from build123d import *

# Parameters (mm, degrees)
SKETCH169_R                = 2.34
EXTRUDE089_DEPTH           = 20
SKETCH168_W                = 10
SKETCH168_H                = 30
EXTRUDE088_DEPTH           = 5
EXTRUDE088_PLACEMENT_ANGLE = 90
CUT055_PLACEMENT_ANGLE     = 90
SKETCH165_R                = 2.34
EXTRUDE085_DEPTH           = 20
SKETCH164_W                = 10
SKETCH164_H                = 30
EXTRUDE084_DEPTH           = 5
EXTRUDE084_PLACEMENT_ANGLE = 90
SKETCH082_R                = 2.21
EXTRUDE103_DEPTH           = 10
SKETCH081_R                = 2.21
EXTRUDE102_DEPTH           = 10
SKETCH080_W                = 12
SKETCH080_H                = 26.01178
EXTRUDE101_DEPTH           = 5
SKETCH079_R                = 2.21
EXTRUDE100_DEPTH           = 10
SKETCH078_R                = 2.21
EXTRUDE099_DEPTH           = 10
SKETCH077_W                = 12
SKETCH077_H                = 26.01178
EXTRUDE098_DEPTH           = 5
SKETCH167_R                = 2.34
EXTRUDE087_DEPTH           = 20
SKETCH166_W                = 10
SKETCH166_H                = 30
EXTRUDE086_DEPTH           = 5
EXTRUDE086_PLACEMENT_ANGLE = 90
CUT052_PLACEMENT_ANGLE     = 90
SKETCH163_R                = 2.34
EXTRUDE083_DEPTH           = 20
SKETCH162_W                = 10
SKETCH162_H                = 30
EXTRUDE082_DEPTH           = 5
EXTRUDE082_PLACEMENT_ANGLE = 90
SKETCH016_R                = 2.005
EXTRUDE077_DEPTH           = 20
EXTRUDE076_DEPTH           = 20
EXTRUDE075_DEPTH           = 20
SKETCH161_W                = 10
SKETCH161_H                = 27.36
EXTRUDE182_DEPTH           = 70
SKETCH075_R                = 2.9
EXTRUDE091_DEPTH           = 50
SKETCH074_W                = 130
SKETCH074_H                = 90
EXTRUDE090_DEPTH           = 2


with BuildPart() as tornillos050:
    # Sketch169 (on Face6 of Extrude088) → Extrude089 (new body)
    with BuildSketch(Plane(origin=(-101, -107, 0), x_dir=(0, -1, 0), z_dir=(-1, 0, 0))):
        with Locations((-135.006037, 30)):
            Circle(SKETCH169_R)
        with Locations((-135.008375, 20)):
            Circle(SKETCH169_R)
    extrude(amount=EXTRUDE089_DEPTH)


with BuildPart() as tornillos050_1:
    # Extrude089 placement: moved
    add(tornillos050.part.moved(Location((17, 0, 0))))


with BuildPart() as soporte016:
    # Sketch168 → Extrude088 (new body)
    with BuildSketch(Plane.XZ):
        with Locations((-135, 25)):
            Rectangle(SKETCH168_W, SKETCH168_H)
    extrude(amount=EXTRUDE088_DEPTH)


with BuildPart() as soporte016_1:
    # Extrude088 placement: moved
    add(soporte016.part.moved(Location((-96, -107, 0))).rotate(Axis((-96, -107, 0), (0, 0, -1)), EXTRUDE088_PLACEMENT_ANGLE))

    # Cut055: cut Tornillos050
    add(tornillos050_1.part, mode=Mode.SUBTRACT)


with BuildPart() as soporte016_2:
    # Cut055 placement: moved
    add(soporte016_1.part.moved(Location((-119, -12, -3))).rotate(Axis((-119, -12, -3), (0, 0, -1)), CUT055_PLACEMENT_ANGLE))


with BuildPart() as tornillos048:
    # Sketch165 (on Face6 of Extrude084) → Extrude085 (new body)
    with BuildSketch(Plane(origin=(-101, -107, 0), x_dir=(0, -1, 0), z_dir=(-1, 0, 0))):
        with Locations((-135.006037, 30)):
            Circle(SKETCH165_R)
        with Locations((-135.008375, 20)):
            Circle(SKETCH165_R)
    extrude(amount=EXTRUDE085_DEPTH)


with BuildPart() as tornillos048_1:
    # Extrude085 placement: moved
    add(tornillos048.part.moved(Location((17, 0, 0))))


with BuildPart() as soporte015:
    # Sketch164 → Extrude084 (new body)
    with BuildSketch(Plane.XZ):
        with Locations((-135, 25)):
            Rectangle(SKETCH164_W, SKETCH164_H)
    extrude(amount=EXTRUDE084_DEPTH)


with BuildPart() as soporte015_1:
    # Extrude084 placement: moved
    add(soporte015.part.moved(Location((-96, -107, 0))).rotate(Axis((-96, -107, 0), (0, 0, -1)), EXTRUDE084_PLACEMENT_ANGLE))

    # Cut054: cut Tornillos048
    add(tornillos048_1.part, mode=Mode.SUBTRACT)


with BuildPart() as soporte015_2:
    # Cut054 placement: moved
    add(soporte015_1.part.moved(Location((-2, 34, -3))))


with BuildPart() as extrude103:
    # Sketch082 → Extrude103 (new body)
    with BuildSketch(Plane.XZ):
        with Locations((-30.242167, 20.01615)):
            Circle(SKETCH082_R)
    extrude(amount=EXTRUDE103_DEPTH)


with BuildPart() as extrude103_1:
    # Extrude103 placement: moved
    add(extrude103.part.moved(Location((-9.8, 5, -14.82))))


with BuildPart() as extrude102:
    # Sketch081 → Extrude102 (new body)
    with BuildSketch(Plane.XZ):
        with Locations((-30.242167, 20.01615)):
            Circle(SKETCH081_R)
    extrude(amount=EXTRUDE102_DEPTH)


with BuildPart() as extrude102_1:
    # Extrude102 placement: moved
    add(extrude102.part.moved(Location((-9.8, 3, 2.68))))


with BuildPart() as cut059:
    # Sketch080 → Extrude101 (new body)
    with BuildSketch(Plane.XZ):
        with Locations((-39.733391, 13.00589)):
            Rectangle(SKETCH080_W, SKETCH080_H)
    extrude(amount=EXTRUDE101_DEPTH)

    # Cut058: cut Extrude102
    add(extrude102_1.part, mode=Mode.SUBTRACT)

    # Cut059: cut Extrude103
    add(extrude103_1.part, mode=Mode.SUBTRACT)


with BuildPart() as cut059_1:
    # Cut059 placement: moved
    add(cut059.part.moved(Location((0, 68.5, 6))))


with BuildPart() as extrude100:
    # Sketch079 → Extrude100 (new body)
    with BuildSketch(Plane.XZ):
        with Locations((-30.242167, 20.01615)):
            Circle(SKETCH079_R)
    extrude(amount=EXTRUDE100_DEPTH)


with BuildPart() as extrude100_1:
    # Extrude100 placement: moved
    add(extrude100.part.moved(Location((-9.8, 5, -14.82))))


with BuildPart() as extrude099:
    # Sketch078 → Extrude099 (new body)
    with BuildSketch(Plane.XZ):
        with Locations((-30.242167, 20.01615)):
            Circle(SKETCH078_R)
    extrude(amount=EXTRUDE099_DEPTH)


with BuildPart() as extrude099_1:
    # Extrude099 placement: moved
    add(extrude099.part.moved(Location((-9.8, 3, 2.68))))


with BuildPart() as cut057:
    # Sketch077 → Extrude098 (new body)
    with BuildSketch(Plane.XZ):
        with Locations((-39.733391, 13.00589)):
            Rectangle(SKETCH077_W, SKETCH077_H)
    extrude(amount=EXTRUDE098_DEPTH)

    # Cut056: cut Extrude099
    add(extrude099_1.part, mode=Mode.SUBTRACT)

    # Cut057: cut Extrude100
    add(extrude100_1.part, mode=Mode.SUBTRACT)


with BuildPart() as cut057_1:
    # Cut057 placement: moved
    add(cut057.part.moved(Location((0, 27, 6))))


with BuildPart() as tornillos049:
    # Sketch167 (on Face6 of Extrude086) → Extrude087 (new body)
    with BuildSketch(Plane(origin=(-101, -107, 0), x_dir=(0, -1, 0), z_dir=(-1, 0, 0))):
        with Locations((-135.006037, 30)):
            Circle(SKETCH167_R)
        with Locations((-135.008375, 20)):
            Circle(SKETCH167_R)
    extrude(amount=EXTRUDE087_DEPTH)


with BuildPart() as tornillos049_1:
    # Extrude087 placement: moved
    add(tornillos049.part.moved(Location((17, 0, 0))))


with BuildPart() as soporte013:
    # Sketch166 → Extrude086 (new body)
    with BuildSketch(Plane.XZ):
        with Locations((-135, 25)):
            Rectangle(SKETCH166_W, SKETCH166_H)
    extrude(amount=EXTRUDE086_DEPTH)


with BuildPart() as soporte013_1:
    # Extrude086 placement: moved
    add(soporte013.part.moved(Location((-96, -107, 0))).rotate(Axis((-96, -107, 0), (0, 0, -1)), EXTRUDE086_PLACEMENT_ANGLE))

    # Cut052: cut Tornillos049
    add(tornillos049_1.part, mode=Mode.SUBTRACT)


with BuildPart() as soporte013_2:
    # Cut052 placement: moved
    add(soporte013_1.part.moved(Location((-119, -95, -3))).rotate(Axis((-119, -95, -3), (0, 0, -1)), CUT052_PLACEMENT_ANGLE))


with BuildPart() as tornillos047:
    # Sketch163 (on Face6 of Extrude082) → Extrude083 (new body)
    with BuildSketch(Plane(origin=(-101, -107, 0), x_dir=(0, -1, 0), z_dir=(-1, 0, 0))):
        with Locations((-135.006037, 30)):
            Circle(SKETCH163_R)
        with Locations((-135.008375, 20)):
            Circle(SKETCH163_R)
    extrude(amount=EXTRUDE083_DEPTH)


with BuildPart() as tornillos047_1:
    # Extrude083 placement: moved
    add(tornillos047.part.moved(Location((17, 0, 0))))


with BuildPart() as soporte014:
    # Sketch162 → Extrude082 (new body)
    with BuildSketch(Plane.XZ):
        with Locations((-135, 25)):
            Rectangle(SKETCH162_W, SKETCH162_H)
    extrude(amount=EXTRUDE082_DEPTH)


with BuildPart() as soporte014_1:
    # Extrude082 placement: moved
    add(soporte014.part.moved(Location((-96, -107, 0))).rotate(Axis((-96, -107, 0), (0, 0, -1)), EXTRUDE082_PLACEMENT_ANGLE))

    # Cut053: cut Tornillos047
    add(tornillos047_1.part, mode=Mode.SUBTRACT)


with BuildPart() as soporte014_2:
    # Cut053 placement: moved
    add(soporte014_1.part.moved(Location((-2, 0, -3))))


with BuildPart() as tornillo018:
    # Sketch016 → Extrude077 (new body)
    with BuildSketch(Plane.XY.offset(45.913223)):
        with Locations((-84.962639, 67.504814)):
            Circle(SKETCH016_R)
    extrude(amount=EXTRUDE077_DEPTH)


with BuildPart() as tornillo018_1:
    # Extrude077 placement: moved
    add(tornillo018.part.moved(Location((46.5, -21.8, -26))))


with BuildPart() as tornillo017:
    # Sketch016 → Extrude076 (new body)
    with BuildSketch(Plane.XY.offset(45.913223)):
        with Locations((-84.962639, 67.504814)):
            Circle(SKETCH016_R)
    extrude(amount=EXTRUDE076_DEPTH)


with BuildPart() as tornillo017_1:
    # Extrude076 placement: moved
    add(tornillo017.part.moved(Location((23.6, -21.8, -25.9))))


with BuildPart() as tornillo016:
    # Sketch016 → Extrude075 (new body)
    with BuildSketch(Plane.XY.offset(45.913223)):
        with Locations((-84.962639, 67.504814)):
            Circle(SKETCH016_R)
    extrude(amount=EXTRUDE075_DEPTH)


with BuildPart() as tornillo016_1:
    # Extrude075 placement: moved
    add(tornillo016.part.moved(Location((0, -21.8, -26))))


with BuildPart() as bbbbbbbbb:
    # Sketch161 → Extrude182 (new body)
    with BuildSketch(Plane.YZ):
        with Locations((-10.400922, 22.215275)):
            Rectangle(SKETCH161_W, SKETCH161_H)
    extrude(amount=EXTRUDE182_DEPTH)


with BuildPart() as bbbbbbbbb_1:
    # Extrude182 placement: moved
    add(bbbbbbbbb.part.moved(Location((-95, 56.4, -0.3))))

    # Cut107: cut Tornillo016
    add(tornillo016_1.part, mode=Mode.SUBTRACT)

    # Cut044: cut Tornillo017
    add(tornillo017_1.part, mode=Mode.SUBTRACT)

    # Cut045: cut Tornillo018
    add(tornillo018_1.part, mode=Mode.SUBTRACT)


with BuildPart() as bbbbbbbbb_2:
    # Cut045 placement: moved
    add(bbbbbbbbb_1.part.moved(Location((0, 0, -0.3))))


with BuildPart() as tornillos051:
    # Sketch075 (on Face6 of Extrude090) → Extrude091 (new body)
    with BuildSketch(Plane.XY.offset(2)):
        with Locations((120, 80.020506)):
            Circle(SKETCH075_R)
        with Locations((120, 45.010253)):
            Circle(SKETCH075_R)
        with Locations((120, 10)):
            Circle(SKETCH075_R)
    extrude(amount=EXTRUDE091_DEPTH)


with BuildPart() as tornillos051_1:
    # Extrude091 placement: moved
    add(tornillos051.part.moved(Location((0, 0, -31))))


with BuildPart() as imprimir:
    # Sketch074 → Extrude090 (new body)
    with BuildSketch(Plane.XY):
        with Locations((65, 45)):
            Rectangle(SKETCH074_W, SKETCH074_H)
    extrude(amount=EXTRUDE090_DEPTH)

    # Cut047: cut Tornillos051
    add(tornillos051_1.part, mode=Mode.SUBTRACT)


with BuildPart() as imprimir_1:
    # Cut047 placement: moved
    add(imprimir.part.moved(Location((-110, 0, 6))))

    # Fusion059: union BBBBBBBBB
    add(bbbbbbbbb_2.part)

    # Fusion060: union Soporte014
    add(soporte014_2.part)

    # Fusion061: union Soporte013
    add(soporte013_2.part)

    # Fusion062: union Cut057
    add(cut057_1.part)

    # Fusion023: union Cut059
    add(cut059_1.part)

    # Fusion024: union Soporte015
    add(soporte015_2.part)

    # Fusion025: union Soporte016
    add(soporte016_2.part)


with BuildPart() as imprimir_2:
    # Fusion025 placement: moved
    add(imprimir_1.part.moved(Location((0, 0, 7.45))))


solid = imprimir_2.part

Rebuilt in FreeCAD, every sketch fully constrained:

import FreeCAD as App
import Part
import Sketcher
Q = App.Units.Quantity


def add_polygon(sketch, points):
    """Adds a closed chain of lines whose ends are joined by coincident constraints."""
    first, n = sketch.GeometryCount, len(points)
    for a, b in zip(points, points[1:] + points[:1]):
        sketch.addGeometry(Part.LineSegment(App.Vector(*a, 0), App.Vector(*b, 0)), False)
    for i in range(n):
        sketch.addConstraint(Sketcher.Constraint("Coincident", first + i, 2, first + (i + 1) % n, 1))

doc = App.newDocument("Part")
params = doc.addObject("Spreadsheet::Sheet", "Params")
for row, (alias, value) in enumerate([
    ("sketch1_diameter", "4.68 mm"),
    ("pad1_length", "20 mm"),
    ("sketch2_width", "10 mm"),
    ("sketch2_height", "30 mm"),
    ("pad2_length", "5 mm"),
    ("sketch3_diameter", "4.68 mm"),
    ("pad3_length", "20 mm"),
    ("sketch4_width", "10 mm"),
    ("sketch4_height", "30 mm"),
    ("pad4_length", "5 mm"),
    ("sketch5_diameter", "4.42 mm"),
    ("pad5_length", "10 mm"),
    ("sketch6_diameter", "4.42 mm"),
    ("pad6_length", "10 mm"),
    ("sketch7_width", "12 mm"),
    ("pad7_length", "5 mm"),
    ("sketch8_diameter", "4.42 mm"),
    ("pad8_length", "10 mm"),
    ("sketch9_diameter", "4.42 mm"),
    ("pad9_length", "10 mm"),
    ("sketch10_width", "12 mm"),
    ("pad10_length", "5 mm"),
    ("sketch11_diameter", "4.68 mm"),
    ("pad11_length", "20 mm"),
    ("sketch12_width", "10 mm"),
    ("sketch12_height", "30 mm"),
    ("pad12_length", "5 mm"),
    ("sketch13_diameter", "4.68 mm"),
    ("pad13_length", "20 mm"),
    ("sketch14_width", "10 mm"),
    ("sketch14_height", "30 mm"),
    ("pad14_length", "5 mm"),
    ("sketch15_diameter", "4.01 mm"),
    ("pad15_length", "20 mm"),
    ("sketch16_diameter", "4.01 mm"),
    ("pad16_length", "20 mm"),
    ("sketch17_diameter", "4.01 mm"),
    ("pad17_length", "20 mm"),
    ("sketch18_width", "10 mm"),
    ("sketch18_height", "27.36 mm"),
    ("pad18_length", "70 mm"),
    ("sketch19_diameter", "5.8 mm"),
    ("pad19_length", "50 mm"),
    ("sketch20_width", "130 mm"),
    ("sketch20_height", "90 mm"),
    ("pad20_length", "2 mm"),
], start=1):
    params.set(f"A{row}", alias)
    params.set(f"B{row}", "=" + value)
    params.setAlias(f"B{row}", alias)

body = doc.addObject("PartDesign::Body", "Body")
body.AllowCompound = True

sketch1 = body.newObject("Sketcher::SketchObject", "Sketch")
sketch1.AttachmentSupport = (doc.getObject("YZ_Plane"), [""])
sketch1.MapMode = "FlatFace"
sketch1.AttachmentOffset = App.Placement(App.Vector(0, 0, -101), App.Rotation())
sketch1.addGeometry(Part.Circle(App.Vector(28, 30, 0), App.Vector(0, 0, 1), 2.3), False)
sketch1.addGeometry(Part.Circle(App.Vector(28, 20, 0), App.Vector(0, 0, 1), 2.3), False)
sketch1.addConstraint(Sketcher.Constraint("Equal", 0, 1))
sketch1.addConstraint(Sketcher.Constraint("Diameter", 0, Q("4.68 mm")))
sketch1.addConstraint(Sketcher.Constraint("DistanceY", -1, 1, 0, 3, Q("30 mm")))
sketch1.addConstraint(Sketcher.Constraint("DistanceY", -1, 1, 1, 3, Q("20 mm")))
sketch1.addConstraint(Sketcher.Constraint("DistanceX", 0, 3, 1, 3, Q("0.002338 mm")))
sketch1.addConstraint(Sketcher.Constraint("DistanceX", -1, 1, 0, 3, Q("28.006037 mm")))
sketch1.setExpression("Constraints[1]", "Params.sketch1_diameter")
pad1 = body.newObject("PartDesign::Pad", "Pad")
pad1.Profile = sketch1
pad1.setExpression("Length", "Params.pad1_length")
pad1.Reversed = True
body2 = doc.addObject("PartDesign::Body", "Body001")
body2.AllowCompound = True
doc.recompute()

body.Placement = App.Placement(App.Vector(17, 0, 0), App.Rotation(App.Vector(0, 0, 1), 0))
boolean = body2.newObject("PartDesign::Boolean", "Boolean")
boolean.Type = "Fuse"
boolean.addObjects([body])
body3 = doc.addObject("PartDesign::Body", "Body002")

sketch2 = body3.newObject("Sketcher::SketchObject", "Sketch001")
sketch2.AttachmentSupport = (doc.getObject("XZ_Plane002"), [""])
sketch2.MapMode = "FlatFace"
add_polygon(sketch2, [(-140, 40), (-140, 10), (-130, 10), (-130, 40)])
sketch2.addConstraint(Sketcher.Constraint("Vertical", 0))
sketch2.addConstraint(Sketcher.Constraint("Horizontal", 1))
sketch2.addConstraint(Sketcher.Constraint("Vertical", 2))
sketch2.addConstraint(Sketcher.Constraint("Horizontal", 3))
sketch2.addConstraint(Sketcher.Constraint("DistanceX", 1, 1, 1, 2, Q("10 mm")))
sketch2.addConstraint(Sketcher.Constraint("DistanceY", 0, 2, 0, 1, Q("30 mm")))
sketch2.addConstraint(Sketcher.Constraint("DistanceX", 0, 2, -1, 1, Q("140 mm")))
sketch2.addConstraint(Sketcher.Constraint("DistanceY", -1, 1, 0, 2, Q("10 mm")))
sketch2.setExpression("Constraints[8]", "Params.sketch2_width")
sketch2.setExpression("Constraints[9]", "Params.sketch2_height")
pad2 = body3.newObject("PartDesign::Pad", "Pad001")
pad2.Profile = sketch2
pad2.setExpression("Length", "Params.pad2_length")
body4 = doc.addObject("PartDesign::Body", "Body003")
doc.recompute()

body3.Placement = App.Placement(App.Vector(-96, -107, 0), App.Rotation(App.Vector(0, 0, -1), 90))
boolean2 = body4.newObject("PartDesign::Boolean", "Boolean001")
boolean2.Type = "Fuse"
boolean2.addObjects([body3])
doc.recompute()

boolean3 = body4.newObject("PartDesign::Boolean", "Boolean002")
boolean3.Type = "Cut"
boolean3.addObjects([body2])
body5 = doc.addObject("PartDesign::Body", "Body004")
doc.recompute()

body4.Placement = App.Placement(App.Vector(-119, -12, -3), App.Rotation(App.Vector(0, 0, -1), 90))
boolean4 = body5.newObject("PartDesign::Boolean", "Boolean003")
boolean4.Type = "Fuse"
boolean4.addObjects([body4])
body6 = doc.addObject("PartDesign::Body", "Body005")
body6.AllowCompound = True

sketch3 = body6.newObject("Sketcher::SketchObject", "Sketch002")
sketch3.AttachmentSupport = (doc.getObject("YZ_Plane005"), [""])
sketch3.MapMode = "FlatFace"
sketch3.AttachmentOffset = App.Placement(App.Vector(0, 0, -101), App.Rotation())
sketch3.addGeometry(Part.Circle(App.Vector(28, 30, 0), App.Vector(0, 0, 1), 2.3), False)
sketch3.addGeometry(Part.Circle(App.Vector(28, 20, 0), App.Vector(0, 0, 1), 2.3), False)
sketch3.addConstraint(Sketcher.Constraint("Equal", 0, 1))
sketch3.addConstraint(Sketcher.Constraint("Diameter", 0, Q("4.68 mm")))
sketch3.addConstraint(Sketcher.Constraint("DistanceY", -1, 1, 0, 3, Q("30 mm")))
sketch3.addConstraint(Sketcher.Constraint("DistanceY", -1, 1, 1, 3, Q("20 mm")))
sketch3.addConstraint(Sketcher.Constraint("DistanceX", 0, 3, 1, 3, Q("0.002338 mm")))
sketch3.addConstraint(Sketcher.Constraint("DistanceX", -1, 1, 0, 3, Q("28.006037 mm")))
sketch3.setExpression("Constraints[1]", "Params.sketch3_diameter")
pad3 = body6.newObject("PartDesign::Pad", "Pad002")
pad3.Profile = sketch3
pad3.setExpression("Length", "Params.pad3_length")
pad3.Reversed = True
body7 = doc.addObject("PartDesign::Body", "Body006")
body7.AllowCompound = True
doc.recompute()

body6.Placement = App.Placement(App.Vector(17, 0, 0), App.Rotation(App.Vector(0, 0, 1), 0))
boolean5 = body7.newObject("PartDesign::Boolean", "Boolean004")
boolean5.Type = "Fuse"
boolean5.addObjects([body6])
body8 = doc.addObject("PartDesign::Body", "Body007")

sketch4 = body8.newObject("Sketcher::SketchObject", "Sketch003")
sketch4.AttachmentSupport = (doc.getObject("XZ_Plane007"), [""])
sketch4.MapMode = "FlatFace"
add_polygon(sketch4, [(-140, 40), (-140, 10), (-130, 10), (-130, 40)])
sketch4.addConstraint(Sketcher.Constraint("Vertical", 0))
sketch4.addConstraint(Sketcher.Constraint("Horizontal", 1))
sketch4.addConstraint(Sketcher.Constraint("Vertical", 2))
sketch4.addConstraint(Sketcher.Constraint("Horizontal", 3))
sketch4.addConstraint(Sketcher.Constraint("DistanceX", 1, 1, 1, 2, Q("10 mm")))
sketch4.addConstraint(Sketcher.Constraint("DistanceY", 0, 2, 0, 1, Q("30 mm")))
sketch4.addConstraint(Sketcher.Constraint("DistanceX", 0, 2, -1, 1, Q("140 mm")))
sketch4.addConstraint(Sketcher.Constraint("DistanceY", -1, 1, 0, 2, Q("10 mm")))
sketch4.setExpression("Constraints[8]", "Params.sketch4_width")
sketch4.setExpression("Constraints[9]", "Params.sketch4_height")
pad4 = body8.newObject("PartDesign::Pad", "Pad003")
pad4.Profile = sketch4
pad4.setExpression("Length", "Params.pad4_length")
body9 = doc.addObject("PartDesign::Body", "Body008")
doc.recompute()

body8.Placement = App.Placement(App.Vector(-96, -107, 0), App.Rotation(App.Vector(0, 0, -1), 90))
boolean6 = body9.newObject("PartDesign::Boolean", "Boolean005")
boolean6.Type = "Fuse"
boolean6.addObjects([body8])
doc.recompute()

boolean7 = body9.newObject("PartDesign::Boolean", "Boolean006")
boolean7.Type = "Cut"
boolean7.addObjects([body7])
body10 = doc.addObject("PartDesign::Body", "Body009")
doc.recompute()

body9.Placement = App.Placement(App.Vector(-2, 34, -3), App.Rotation(App.Vector(0, 0, 1), 0))
boolean8 = body10.newObject("PartDesign::Boolean", "Boolean007")
boolean8.Type = "Fuse"
boolean8.addObjects([body9])
body11 = doc.addObject("PartDesign::Body", "Body010")

sketch5 = body11.newObject("Sketcher::SketchObject", "Sketch004")
sketch5.AttachmentSupport = (doc.getObject("XZ_Plane010"), [""])
sketch5.MapMode = "FlatFace"
sketch5.addGeometry(Part.Circle(App.Vector(-30.2, 20, 0), App.Vector(0, 0, 1), 2.2), False)
sketch5.addConstraint(Sketcher.Constraint("Diameter", 0, Q("4.42 mm")))
sketch5.addConstraint(Sketcher.Constraint("DistanceY", -1, 1, 0, 3, Q("20.01615 mm")))
sketch5.addConstraint(Sketcher.Constraint("DistanceX", 0, 3, -1, 1, Q("30.242167 mm")))
sketch5.setExpression("Constraints[0]", "Params.sketch5_diameter")
pad5 = body11.newObject("PartDesign::Pad", "Pad004")
pad5.Profile = sketch5
pad5.setExpression("Length", "Params.pad5_length")
body12 = doc.addObject("PartDesign::Body", "Body011")
doc.recompute()

body11.Placement = App.Placement(App.Vector(-9.8, 5, -14.82), App.Rotation(App.Vector(0, 0, 1), 0))
boolean9 = body12.newObject("PartDesign::Boolean", "Boolean008")
boolean9.Type = "Fuse"
boolean9.addObjects([body11])
body13 = doc.addObject("PartDesign::Body", "Body012")

sketch6 = body13.newObject("Sketcher::SketchObject", "Sketch005")
sketch6.AttachmentSupport = (doc.getObject("XZ_Plane012"), [""])
sketch6.MapMode = "FlatFace"
sketch6.addGeometry(Part.Circle(App.Vector(-30.2, 20, 0), App.Vector(0, 0, 1), 2.2), False)
sketch6.addConstraint(Sketcher.Constraint("Diameter", 0, Q("4.42 mm")))
sketch6.addConstraint(Sketcher.Constraint("DistanceY", -1, 1, 0, 3, Q("20.01615 mm")))
sketch6.addConstraint(Sketcher.Constraint("DistanceX", 0, 3, -1, 1, Q("30.242167 mm")))
sketch6.setExpression("Constraints[0]", "Params.sketch6_diameter")
pad6 = body13.newObject("PartDesign::Pad", "Pad005")
pad6.Profile = sketch6
pad6.setExpression("Length", "Params.pad6_length")
body14 = doc.addObject("PartDesign::Body", "Body013")
doc.recompute()

body13.Placement = App.Placement(App.Vector(-9.8, 3, 2.68), App.Rotation(App.Vector(0, 0, 1), 0))
boolean10 = body14.newObject("PartDesign::Boolean", "Boolean009")
boolean10.Type = "Fuse"
boolean10.addObjects([body13])
body15 = doc.addObject("PartDesign::Body", "Body014")

sketch7 = body15.newObject("Sketcher::SketchObject", "Sketch006")
sketch7.AttachmentSupport = (doc.getObject("XZ_Plane014"), [""])
sketch7.MapMode = "FlatFace"
add_polygon(sketch7, [(-46, 26), (-46, 0), (-34, 0), (-34, 26)])
sketch7.addConstraint(Sketcher.Constraint("Vertical", 0))
sketch7.addConstraint(Sketcher.Constraint("Horizontal", 1))
sketch7.addConstraint(Sketcher.Constraint("Vertical", 2))
sketch7.addConstraint(Sketcher.Constraint("Horizontal", 3))
sketch7.addConstraint(Sketcher.Constraint("PointOnObject", 0, 2, -1))
sketch7.addConstraint(Sketcher.Constraint("DistanceX", 1, 1, 1, 2, Q("12 mm")))
sketch7.addConstraint(Sketcher.Constraint("DistanceY", 0, 2, 0, 1, Q("26.01178 mm")))
sketch7.addConstraint(Sketcher.Constraint("DistanceX", 0, 2, -1, 1, Q("45.733391 mm")))
sketch7.setExpression("Constraints[9]", "Params.sketch7_width")
pad7 = body15.newObject("PartDesign::Pad", "Pad006")
pad7.Profile = sketch7
pad7.setExpression("Length", "Params.pad7_length")
doc.recompute()

boolean11 = body15.newObject("PartDesign::Boolean", "Boolean010")
boolean11.Type = "Cut"
boolean11.addObjects([body14])
doc.recompute()

boolean12 = body15.newObject("PartDesign::Boolean", "Boolean011")
boolean12.Type = "Cut"
boolean12.addObjects([body12])
body16 = doc.addObject("PartDesign::Body", "Body015")
doc.recompute()

body15.Placement = App.Placement(App.Vector(0, 68.5, 6), App.Rotation(App.Vector(0, 0, 1), 0))
boolean13 = body16.newObject("PartDesign::Boolean", "Boolean012")
boolean13.Type = "Fuse"
boolean13.addObjects([body15])
body17 = doc.addObject("PartDesign::Body", "Body016")

sketch8 = body17.newObject("Sketcher::SketchObject", "Sketch007")
sketch8.AttachmentSupport = (doc.getObject("XZ_Plane016"), [""])
sketch8.MapMode = "FlatFace"
sketch8.addGeometry(Part.Circle(App.Vector(-30.2, 20, 0), App.Vector(0, 0, 1), 2.2), False)
sketch8.addConstraint(Sketcher.Constraint("Diameter", 0, Q("4.42 mm")))
sketch8.addConstraint(Sketcher.Constraint("DistanceY", -1, 1, 0, 3, Q("20.01615 mm")))
sketch8.addConstraint(Sketcher.Constraint("DistanceX", 0, 3, -1, 1, Q("30.242167 mm")))
sketch8.setExpression("Constraints[0]", "Params.sketch8_diameter")
pad8 = body17.newObject("PartDesign::Pad", "Pad007")
pad8.Profile = sketch8
pad8.setExpression("Length", "Params.pad8_length")
body18 = doc.addObject("PartDesign::Body", "Body017")
doc.recompute()

body17.Placement = App.Placement(App.Vector(-9.8, 5, -14.82), App.Rotation(App.Vector(0, 0, 1), 0))
boolean14 = body18.newObject("PartDesign::Boolean", "Boolean013")
boolean14.Type = "Fuse"
boolean14.addObjects([body17])
body19 = doc.addObject("PartDesign::Body", "Body018")

sketch9 = body19.newObject("Sketcher::SketchObject", "Sketch008")
sketch9.AttachmentSupport = (doc.getObject("XZ_Plane018"), [""])
sketch9.MapMode = "FlatFace"
sketch9.addGeometry(Part.Circle(App.Vector(-30.2, 20, 0), App.Vector(0, 0, 1), 2.2), False)
sketch9.addConstraint(Sketcher.Constraint("Diameter", 0, Q("4.42 mm")))
sketch9.addConstraint(Sketcher.Constraint("DistanceY", -1, 1, 0, 3, Q("20.01615 mm")))
sketch9.addConstraint(Sketcher.Constraint("DistanceX", 0, 3, -1, 1, Q("30.242167 mm")))
sketch9.setExpression("Constraints[0]", "Params.sketch9_diameter")
pad9 = body19.newObject("PartDesign::Pad", "Pad008")
pad9.Profile = sketch9
pad9.setExpression("Length", "Params.pad9_length")
body20 = doc.addObject("PartDesign::Body", "Body019")
doc.recompute()

body19.Placement = App.Placement(App.Vector(-9.8, 3, 2.68), App.Rotation(App.Vector(0, 0, 1), 0))
boolean15 = body20.newObject("PartDesign::Boolean", "Boolean014")
boolean15.Type = "Fuse"
boolean15.addObjects([body19])
body21 = doc.addObject("PartDesign::Body", "Body020")

sketch10 = body21.newObject("Sketcher::SketchObject", "Sketch009")
sketch10.AttachmentSupport = (doc.getObject("XZ_Plane020"), [""])
sketch10.MapMode = "FlatFace"
add_polygon(sketch10, [(-46, 26), (-46, 0), (-34, 0), (-34, 26)])
sketch10.addConstraint(Sketcher.Constraint("Vertical", 0))
sketch10.addConstraint(Sketcher.Constraint("Horizontal", 1))
sketch10.addConstraint(Sketcher.Constraint("Vertical", 2))
sketch10.addConstraint(Sketcher.Constraint("Horizontal", 3))
sketch10.addConstraint(Sketcher.Constraint("PointOnObject", 0, 2, -1))
sketch10.addConstraint(Sketcher.Constraint("DistanceX", 1, 1, 1, 2, Q("12 mm")))
sketch10.addConstraint(Sketcher.Constraint("DistanceY", 0, 2, 0, 1, Q("26.01178 mm")))
sketch10.addConstraint(Sketcher.Constraint("DistanceX", 0, 2, -1, 1, Q("45.733391 mm")))
sketch10.setExpression("Constraints[9]", "Params.sketch10_width")
pad10 = body21.newObject("PartDesign::Pad", "Pad009")
pad10.Profile = sketch10
pad10.setExpression("Length", "Params.pad10_length")
doc.recompute()

boolean16 = body21.newObject("PartDesign::Boolean", "Boolean015")
boolean16.Type = "Cut"
boolean16.addObjects([body20])
doc.recompute()

boolean17 = body21.newObject("PartDesign::Boolean", "Boolean016")
boolean17.Type = "Cut"
boolean17.addObjects([body18])
body22 = doc.addObject("PartDesign::Body", "Body021")
doc.recompute()

body21.Placement = App.Placement(App.Vector(0, 27, 6), App.Rotation(App.Vector(0, 0, 1), 0))
boolean18 = body22.newObject("PartDesign::Boolean", "Boolean017")
boolean18.Type = "Fuse"
boolean18.addObjects([body21])
body23 = doc.addObject("PartDesign::Body", "Body022")
body23.AllowCompound = True

sketch11 = body23.newObject("Sketcher::SketchObject", "Sketch010")
sketch11.AttachmentSupport = (doc.getObject("YZ_Plane022"), [""])
sketch11.MapMode = "FlatFace"
sketch11.AttachmentOffset = App.Placement(App.Vector(0, 0, -101), App.Rotation())
sketch11.addGeometry(Part.Circle(App.Vector(28, 30, 0), App.Vector(0, 0, 1), 2.3), False)
sketch11.addGeometry(Part.Circle(App.Vector(28, 20, 0), App.Vector(0, 0, 1), 2.3), False)
sketch11.addConstraint(Sketcher.Constraint("Equal", 0, 1))
sketch11.addConstraint(Sketcher.Constraint("Diameter", 0, Q("4.68 mm")))
sketch11.addConstraint(Sketcher.Constraint("DistanceY", -1, 1, 0, 3, Q("30 mm")))
sketch11.addConstraint(Sketcher.Constraint("DistanceY", -1, 1, 1, 3, Q("20 mm")))
sketch11.addConstraint(Sketcher.Constraint("DistanceX", 0, 3, 1, 3, Q("0.002338 mm")))
sketch11.addConstraint(Sketcher.Constraint("DistanceX", -1, 1, 0, 3, Q("28.006037 mm")))
sketch11.setExpression("Constraints[1]", "Params.sketch11_diameter")
pad11 = body23.newObject("PartDesign::Pad", "Pad010")
pad11.Profile = sketch11
pad11.setExpression("Length", "Params.pad11_length")
pad11.Reversed = True
body24 = doc.addObject("PartDesign::Body", "Body023")
body24.AllowCompound = True
doc.recompute()

body23.Placement = App.Placement(App.Vector(17, 0, 0), App.Rotation(App.Vector(0, 0, 1), 0))
boolean19 = body24.newObject("PartDesign::Boolean", "Boolean018")
boolean19.Type = "Fuse"
boolean19.addObjects([body23])
body25 = doc.addObject("PartDesign::Body", "Body024")

sketch12 = body25.newObject("Sketcher::SketchObject", "Sketch011")
sketch12.AttachmentSupport = (doc.getObject("XZ_Plane024"), [""])
sketch12.MapMode = "FlatFace"
add_polygon(sketch12, [(-140, 40), (-140, 10), (-130, 10), (-130, 40)])
sketch12.addConstraint(Sketcher.Constraint("Vertical", 0))
sketch12.addConstraint(Sketcher.Constraint("Horizontal", 1))
sketch12.addConstraint(Sketcher.Constraint("Vertical", 2))
sketch12.addConstraint(Sketcher.Constraint("Horizontal", 3))
sketch12.addConstraint(Sketcher.Constraint("DistanceX", 1, 1, 1, 2, Q("10 mm")))
sketch12.addConstraint(Sketcher.Constraint("DistanceY", 0, 2, 0, 1, Q("30 mm")))
sketch12.addConstraint(Sketcher.Constraint("DistanceX", 0, 2, -1, 1, Q("140 mm")))
sketch12.addConstraint(Sketcher.Constraint("DistanceY", -1, 1, 0, 2, Q("10 mm")))
sketch12.setExpression("Constraints[8]", "Params.sketch12_width")
sketch12.setExpression("Constraints[9]", "Params.sketch12_height")
pad12 = body25.newObject("PartDesign::Pad", "Pad011")
pad12.Profile = sketch12
pad12.setExpression("Length", "Params.pad12_length")
body26 = doc.addObject("PartDesign::Body", "Body025")
doc.recompute()

body25.Placement = App.Placement(App.Vector(-96, -107, 0), App.Rotation(App.Vector(0, 0, -1), 90))
boolean20 = body26.newObject("PartDesign::Boolean", "Boolean019")
boolean20.Type = "Fuse"
boolean20.addObjects([body25])
doc.recompute()

boolean21 = body26.newObject("PartDesign::Boolean", "Boolean020")
boolean21.Type = "Cut"
boolean21.addObjects([body24])
body27 = doc.addObject("PartDesign::Body", "Body026")
doc.recompute()

body26.Placement = App.Placement(App.Vector(-119, -95, -3), App.Rotation(App.Vector(0, 0, -1), 90))
boolean22 = body27.newObject("PartDesign::Boolean", "Boolean021")
boolean22.Type = "Fuse"
boolean22.addObjects([body26])
body28 = doc.addObject("PartDesign::Body", "Body027")
body28.AllowCompound = True

sketch13 = body28.newObject("Sketcher::SketchObject", "Sketch012")
sketch13.AttachmentSupport = (doc.getObject("YZ_Plane027"), [""])
sketch13.MapMode = "FlatFace"
sketch13.AttachmentOffset = App.Placement(App.Vector(0, 0, -101), App.Rotation())
sketch13.addGeometry(Part.Circle(App.Vector(28, 30, 0), App.Vector(0, 0, 1), 2.3), False)
sketch13.addGeometry(Part.Circle(App.Vector(28, 20, 0), App.Vector(0, 0, 1), 2.3), False)
sketch13.addConstraint(Sketcher.Constraint("Equal", 0, 1))
sketch13.addConstraint(Sketcher.Constraint("Diameter", 0, Q("4.68 mm")))
sketch13.addConstraint(Sketcher.Constraint("DistanceY", -1, 1, 0, 3, Q("30 mm")))
sketch13.addConstraint(Sketcher.Constraint("DistanceY", -1, 1, 1, 3, Q("20 mm")))
sketch13.addConstraint(Sketcher.Constraint("DistanceX", 0, 3, 1, 3, Q("0.002338 mm")))
sketch13.addConstraint(Sketcher.Constraint("DistanceX", -1, 1, 0, 3, Q("28.006037 mm")))
sketch13.setExpression("Constraints[1]", "Params.sketch13_diameter")
pad13 = body28.newObject("PartDesign::Pad", "Pad012")
pad13.Profile = sketch13
pad13.setExpression("Length", "Params.pad13_length")
pad13.Reversed = True
body29 = doc.addObject("PartDesign::Body", "Body028")
body29.AllowCompound = True
doc.recompute()

body28.Placement = App.Placement(App.Vector(17, 0, 0), App.Rotation(App.Vector(0, 0, 1), 0))
boolean23 = body29.newObject("PartDesign::Boolean", "Boolean022")
boolean23.Type = "Fuse"
boolean23.addObjects([body28])
body30 = doc.addObject("PartDesign::Body", "Body029")

sketch14 = body30.newObject("Sketcher::SketchObject", "Sketch013")
sketch14.AttachmentSupport = (doc.getObject("XZ_Plane029"), [""])
sketch14.MapMode = "FlatFace"
add_polygon(sketch14, [(-140, 40), (-140, 10), (-130, 10), (-130, 40)])
sketch14.addConstraint(Sketcher.Constraint("Vertical", 0))
sketch14.addConstraint(Sketcher.Constraint("Horizontal", 1))
sketch14.addConstraint(Sketcher.Constraint("Vertical", 2))
sketch14.addConstraint(Sketcher.Constraint("Horizontal", 3))
sketch14.addConstraint(Sketcher.Constraint("DistanceX", 1, 1, 1, 2, Q("10 mm")))
sketch14.addConstraint(Sketcher.Constraint("DistanceY", 0, 2, 0, 1, Q("30 mm")))
sketch14.addConstraint(Sketcher.Constraint("DistanceX", 0, 2, -1, 1, Q("140 mm")))
sketch14.addConstraint(Sketcher.Constraint("DistanceY", -1, 1, 0, 2, Q("10 mm")))
sketch14.setExpression("Constraints[8]", "Params.sketch14_width")
sketch14.setExpression("Constraints[9]", "Params.sketch14_height")
pad14 = body30.newObject("PartDesign::Pad", "Pad013")
pad14.Profile = sketch14
pad14.setExpression("Length", "Params.pad14_length")
body31 = doc.addObject("PartDesign::Body", "Body030")
doc.recompute()

body30.Placement = App.Placement(App.Vector(-96, -107, 0), App.Rotation(App.Vector(0, 0, -1), 90))
boolean24 = body31.newObject("PartDesign::Boolean", "Boolean023")
boolean24.Type = "Fuse"
boolean24.addObjects([body30])
doc.recompute()

boolean25 = body31.newObject("PartDesign::Boolean", "Boolean024")
boolean25.Type = "Cut"
boolean25.addObjects([body29])
body32 = doc.addObject("PartDesign::Body", "Body031")
doc.recompute()

body31.Placement = App.Placement(App.Vector(-2, 0, -3), App.Rotation(App.Vector(0, 0, 1), 0))
boolean26 = body32.newObject("PartDesign::Boolean", "Boolean025")
boolean26.Type = "Fuse"
boolean26.addObjects([body31])
body33 = doc.addObject("PartDesign::Body", "Body032")

sketch15 = body33.newObject("Sketcher::SketchObject", "Sketch014")
sketch15.AttachmentSupport = (doc.getObject("XY_Plane032"), [""])
sketch15.MapMode = "FlatFace"
sketch15.AttachmentOffset = App.Placement(App.Vector(0, 0, 45.913223), App.Rotation())
sketch15.addGeometry(Part.Circle(App.Vector(-85, 67.5, 0), App.Vector(0, 0, 1), 2), False)
sketch15.addConstraint(Sketcher.Constraint("Diameter", 0, Q("4.01 mm")))
sketch15.addConstraint(Sketcher.Constraint("DistanceX", 0, 3, -1, 1, Q("84.962639 mm")))
sketch15.addConstraint(Sketcher.Constraint("DistanceY", -1, 1, 0, 3, Q("67.504814 mm")))
sketch15.setExpression("Constraints[0]", "Params.sketch15_diameter")
pad15 = body33.newObject("PartDesign::Pad", "Pad014")
pad15.Profile = sketch15
pad15.setExpression("Length", "Params.pad15_length")
body34 = doc.addObject("PartDesign::Body", "Body033")
doc.recompute()

body33.Placement = App.Placement(App.Vector(46.5, -21.8, -26), App.Rotation(App.Vector(0, 0, 1), 0))
boolean27 = body34.newObject("PartDesign::Boolean", "Boolean026")
boolean27.Type = "Fuse"
boolean27.addObjects([body33])
body35 = doc.addObject("PartDesign::Body", "Body034")

sketch16 = body35.newObject("Sketcher::SketchObject", "Sketch015")
sketch16.AttachmentSupport = (doc.getObject("XY_Plane034"), [""])
sketch16.MapMode = "FlatFace"
sketch16.AttachmentOffset = App.Placement(App.Vector(0, 0, 45.913223), App.Rotation())
sketch16.addGeometry(Part.Circle(App.Vector(-85, 67.5, 0), App.Vector(0, 0, 1), 2), False)
sketch16.addConstraint(Sketcher.Constraint("Diameter", 0, Q("4.01 mm")))
sketch16.addConstraint(Sketcher.Constraint("DistanceX", 0, 3, -1, 1, Q("84.962639 mm")))
sketch16.addConstraint(Sketcher.Constraint("DistanceY", -1, 1, 0, 3, Q("67.504814 mm")))
sketch16.setExpression("Constraints[0]", "Params.sketch16_diameter")
pad16 = body35.newObject("PartDesign::Pad", "Pad015")
pad16.Profile = sketch16
pad16.setExpression("Length", "Params.pad16_length")
body36 = doc.addObject("PartDesign::Body", "Body035")
doc.recompute()

body35.Placement = App.Placement(App.Vector(23.6, -21.8, -25.9), App.Rotation(App.Vector(0, 0, 1), 0))
boolean28 = body36.newObject("PartDesign::Boolean", "Boolean027")
boolean28.Type = "Fuse"
boolean28.addObjects([body35])
body37 = doc.addObject("PartDesign::Body", "Body036")

sketch17 = body37.newObject("Sketcher::SketchObject", "Sketch016")
sketch17.AttachmentSupport = (doc.getObject("XY_Plane036"), [""])
sketch17.MapMode = "FlatFace"
sketch17.AttachmentOffset = App.Placement(App.Vector(0, 0, 45.913223), App.Rotation())
sketch17.addGeometry(Part.Circle(App.Vector(-85, 67.5, 0), App.Vector(0, 0, 1), 2), False)
sketch17.addConstraint(Sketcher.Constraint("Diameter", 0, Q("4.01 mm")))
sketch17.addConstraint(Sketcher.Constraint("DistanceX", 0, 3, -1, 1, Q("84.962639 mm")))
sketch17.addConstraint(Sketcher.Constraint("DistanceY", -1, 1, 0, 3, Q("67.504814 mm")))
sketch17.setExpression("Constraints[0]", "Params.sketch17_diameter")
pad17 = body37.newObject("PartDesign::Pad", "Pad016")
pad17.Profile = sketch17
pad17.setExpression("Length", "Params.pad17_length")
body38 = doc.addObject("PartDesign::Body", "Body037")
doc.recompute()

body37.Placement = App.Placement(App.Vector(0, -21.8, -26), App.Rotation(App.Vector(0, 0, 1), 0))
boolean29 = body38.newObject("PartDesign::Boolean", "Boolean028")
boolean29.Type = "Fuse"
boolean29.addObjects([body37])
body39 = doc.addObject("PartDesign::Body", "Body038")

sketch18 = body39.newObject("Sketcher::SketchObject", "Sketch017")
sketch18.AttachmentSupport = (doc.getObject("YZ_Plane038"), [""])
sketch18.MapMode = "FlatFace"
add_polygon(sketch18, [(-15, 36), (-15, 9), (-5, 9), (-5, 36)])
sketch18.addConstraint(Sketcher.Constraint("Vertical", 0))
sketch18.addConstraint(Sketcher.Constraint("Horizontal", 1))
sketch18.addConstraint(Sketcher.Constraint("Vertical", 2))
sketch18.addConstraint(Sketcher.Constraint("Horizontal", 3))
sketch18.addConstraint(Sketcher.Constraint("DistanceX", 1, 1, 1, 2, Q("10 mm")))
sketch18.addConstraint(Sketcher.Constraint("DistanceY", 0, 2, 0, 1, Q("27.36 mm")))
sketch18.addConstraint(Sketcher.Constraint("DistanceX", 1, 2, -1, 1, Q("5.400922 mm")))
sketch18.addConstraint(Sketcher.Constraint("DistanceY", -1, 1, 0, 2, Q("8.535275 mm")))
sketch18.setExpression("Constraints[8]", "Params.sketch18_width")
sketch18.setExpression("Constraints[9]", "Params.sketch18_height")
pad18 = body39.newObject("PartDesign::Pad", "Pad017")
pad18.Profile = sketch18
pad18.setExpression("Length", "Params.pad18_length")
body40 = doc.addObject("PartDesign::Body", "Body039")
doc.recompute()

body39.Placement = App.Placement(App.Vector(-95, 56.4, -0.3), App.Rotation(App.Vector(0, 0, 1), 0))
boolean30 = body40.newObject("PartDesign::Boolean", "Boolean029")
boolean30.Type = "Fuse"
boolean30.addObjects([body39])
doc.recompute()

boolean31 = body40.newObject("PartDesign::Boolean", "Boolean030")
boolean31.Type = "Cut"
boolean31.addObjects([body38])
doc.recompute()

boolean32 = body40.newObject("PartDesign::Boolean", "Boolean031")
boolean32.Type = "Cut"
boolean32.addObjects([body36])
doc.recompute()

boolean33 = body40.newObject("PartDesign::Boolean", "Boolean032")
boolean33.Type = "Cut"
boolean33.addObjects([body34])
body41 = doc.addObject("PartDesign::Body", "Body040")
doc.recompute()

body40.Placement = App.Placement(App.Vector(0, 0, -0.3), App.Rotation(App.Vector(0, 0, 1), 0))
boolean34 = body41.newObject("PartDesign::Boolean", "Boolean033")
boolean34.Type = "Fuse"
boolean34.addObjects([body40])
body42 = doc.addObject("PartDesign::Body", "Body041")
body42.AllowCompound = True

sketch19 = body42.newObject("Sketcher::SketchObject", "Sketch018")
sketch19.AttachmentSupport = (doc.getObject("XY_Plane041"), [""])
sketch19.MapMode = "FlatFace"
sketch19.AttachmentOffset = App.Placement(App.Vector(0, 0, 2), App.Rotation())
sketch19.addGeometry(Part.Circle(App.Vector(120, 80, 0), App.Vector(0, 0, 1), 2.9), False)
sketch19.addGeometry(Part.Circle(App.Vector(120, 45, 0), App.Vector(0, 0, 1), 2.9), False)
sketch19.addGeometry(Part.Circle(App.Vector(120, 10, 0), App.Vector(0, 0, 1), 2.9), False)
sketch19.addConstraint(Sketcher.Constraint("Equal", 0, 1))
sketch19.addConstraint(Sketcher.Constraint("Equal", 1, 2))
sketch19.addConstraint(Sketcher.Constraint("Vertical", 0, 3, 1, 3))
sketch19.addConstraint(Sketcher.Constraint("Vertical", 1, 3, 2, 3))
sketch19.addConstraint(Sketcher.Constraint("Diameter", 0, Q("5.8 mm")))
sketch19.addConstraint(Sketcher.Constraint("DistanceX", -1, 1, 0, 3, Q("120 mm")))
sketch19.addConstraint(Sketcher.Constraint("DistanceY", -1, 1, 2, 3, Q("10 mm")))
sketch19.addConstraint(Sketcher.Constraint("DistanceY", -1, 1, 0, 3, Q("80.020506 mm")))
sketch19.addConstraint(Sketcher.Constraint("DistanceY", -1, 1, 1, 3, Q("45.010253 mm")))
sketch19.setExpression("Constraints[4]", "Params.sketch19_diameter")
pad19 = body42.newObject("PartDesign::Pad", "Pad018")
pad19.Profile = sketch19
pad19.setExpression("Length", "Params.pad19_length")
body43 = doc.addObject("PartDesign::Body", "Body042")
body43.AllowCompound = True
doc.recompute()

body42.Placement = App.Placement(App.Vector(0, 0, -31), App.Rotation(App.Vector(0, 0, 1), 0))
boolean35 = body43.newObject("PartDesign::Boolean", "Boolean034")
boolean35.Type = "Fuse"
boolean35.addObjects([body42])
body44 = doc.addObject("PartDesign::Body", "Body043")

sketch20 = body44.newObject("Sketcher::SketchObject", "Sketch019")
sketch20.AttachmentSupport = (doc.getObject("XY_Plane043"), [""])
sketch20.MapMode = "FlatFace"
add_polygon(sketch20, [(0, 90), (0, 0), (130, 0), (130, 90)])
sketch20.addConstraint(Sketcher.Constraint("Vertical", 0))
sketch20.addConstraint(Sketcher.Constraint("Horizontal", 1))
sketch20.addConstraint(Sketcher.Constraint("Vertical", 2))
sketch20.addConstraint(Sketcher.Constraint("Horizontal", 3))
sketch20.addConstraint(Sketcher.Constraint("Coincident", 0, 2, -1, 1))
sketch20.addConstraint(Sketcher.Constraint("DistanceX", 1, 1, 1, 2, Q("130 mm")))
sketch20.addConstraint(Sketcher.Constraint("DistanceY", 0, 2, 0, 1, Q("90 mm")))
sketch20.setExpression("Constraints[9]", "Params.sketch20_width")
sketch20.setExpression("Constraints[10]", "Params.sketch20_height")
pad20 = body44.newObject("PartDesign::Pad", "Pad019")
pad20.Profile = sketch20
pad20.setExpression("Length", "Params.pad20_length")
doc.recompute()

boolean36 = body44.newObject("PartDesign::Boolean", "Boolean035")
boolean36.Type = "Cut"
boolean36.addObjects([body43])
body45 = doc.addObject("PartDesign::Body", "Body044")
doc.recompute()

body44.Placement = App.Placement(App.Vector(-110, 0, 6), App.Rotation(App.Vector(0, 0, 1), 0))
boolean37 = body45.newObject("PartDesign::Boolean", "Boolean036")
boolean37.Type = "Fuse"
boolean37.addObjects([body44])
doc.recompute()

boolean38 = body45.newObject("PartDesign::Boolean", "Boolean037")
boolean38.Type = "Fuse"
boolean38.addObjects([body41])
doc.recompute()

boolean39 = body45.newObject("PartDesign::Boolean", "Boolean038")
boolean39.Type = "Fuse"
boolean39.addObjects([body32])
doc.recompute()

boolean40 = body45.newObject("PartDesign::Boolean", "Boolean039")
boolean40.Type = "Fuse"
boolean40.addObjects([body27])
doc.recompute()

boolean41 = body45.newObject("PartDesign::Boolean", "Boolean040")
boolean41.Type = "Fuse"
boolean41.addObjects([body22])
doc.recompute()

boolean42 = body45.newObject("PartDesign::Boolean", "Boolean041")
boolean42.Type = "Fuse"
boolean42.addObjects([body16])
doc.recompute()

boolean43 = body45.newObject("PartDesign::Boolean", "Boolean042")
boolean43.Type = "Fuse"
boolean43.addObjects([body10])
doc.recompute()

boolean44 = body45.newObject("PartDesign::Boolean", "Boolean043")
boolean44.Type = "Fuse"
boolean44.addObjects([body5])
body46 = doc.addObject("PartDesign::Body", "Body045")
doc.recompute()

body45.Placement = App.Placement(App.Vector(0, 0, 7.45), App.Rotation(App.Vector(0, 0, 1), 0))
boolean45 = body46.newObject("PartDesign::Boolean", "Boolean044")
boolean45.Type = "Fuse"
boolean45.addObjects([body45])

doc.recompute()
